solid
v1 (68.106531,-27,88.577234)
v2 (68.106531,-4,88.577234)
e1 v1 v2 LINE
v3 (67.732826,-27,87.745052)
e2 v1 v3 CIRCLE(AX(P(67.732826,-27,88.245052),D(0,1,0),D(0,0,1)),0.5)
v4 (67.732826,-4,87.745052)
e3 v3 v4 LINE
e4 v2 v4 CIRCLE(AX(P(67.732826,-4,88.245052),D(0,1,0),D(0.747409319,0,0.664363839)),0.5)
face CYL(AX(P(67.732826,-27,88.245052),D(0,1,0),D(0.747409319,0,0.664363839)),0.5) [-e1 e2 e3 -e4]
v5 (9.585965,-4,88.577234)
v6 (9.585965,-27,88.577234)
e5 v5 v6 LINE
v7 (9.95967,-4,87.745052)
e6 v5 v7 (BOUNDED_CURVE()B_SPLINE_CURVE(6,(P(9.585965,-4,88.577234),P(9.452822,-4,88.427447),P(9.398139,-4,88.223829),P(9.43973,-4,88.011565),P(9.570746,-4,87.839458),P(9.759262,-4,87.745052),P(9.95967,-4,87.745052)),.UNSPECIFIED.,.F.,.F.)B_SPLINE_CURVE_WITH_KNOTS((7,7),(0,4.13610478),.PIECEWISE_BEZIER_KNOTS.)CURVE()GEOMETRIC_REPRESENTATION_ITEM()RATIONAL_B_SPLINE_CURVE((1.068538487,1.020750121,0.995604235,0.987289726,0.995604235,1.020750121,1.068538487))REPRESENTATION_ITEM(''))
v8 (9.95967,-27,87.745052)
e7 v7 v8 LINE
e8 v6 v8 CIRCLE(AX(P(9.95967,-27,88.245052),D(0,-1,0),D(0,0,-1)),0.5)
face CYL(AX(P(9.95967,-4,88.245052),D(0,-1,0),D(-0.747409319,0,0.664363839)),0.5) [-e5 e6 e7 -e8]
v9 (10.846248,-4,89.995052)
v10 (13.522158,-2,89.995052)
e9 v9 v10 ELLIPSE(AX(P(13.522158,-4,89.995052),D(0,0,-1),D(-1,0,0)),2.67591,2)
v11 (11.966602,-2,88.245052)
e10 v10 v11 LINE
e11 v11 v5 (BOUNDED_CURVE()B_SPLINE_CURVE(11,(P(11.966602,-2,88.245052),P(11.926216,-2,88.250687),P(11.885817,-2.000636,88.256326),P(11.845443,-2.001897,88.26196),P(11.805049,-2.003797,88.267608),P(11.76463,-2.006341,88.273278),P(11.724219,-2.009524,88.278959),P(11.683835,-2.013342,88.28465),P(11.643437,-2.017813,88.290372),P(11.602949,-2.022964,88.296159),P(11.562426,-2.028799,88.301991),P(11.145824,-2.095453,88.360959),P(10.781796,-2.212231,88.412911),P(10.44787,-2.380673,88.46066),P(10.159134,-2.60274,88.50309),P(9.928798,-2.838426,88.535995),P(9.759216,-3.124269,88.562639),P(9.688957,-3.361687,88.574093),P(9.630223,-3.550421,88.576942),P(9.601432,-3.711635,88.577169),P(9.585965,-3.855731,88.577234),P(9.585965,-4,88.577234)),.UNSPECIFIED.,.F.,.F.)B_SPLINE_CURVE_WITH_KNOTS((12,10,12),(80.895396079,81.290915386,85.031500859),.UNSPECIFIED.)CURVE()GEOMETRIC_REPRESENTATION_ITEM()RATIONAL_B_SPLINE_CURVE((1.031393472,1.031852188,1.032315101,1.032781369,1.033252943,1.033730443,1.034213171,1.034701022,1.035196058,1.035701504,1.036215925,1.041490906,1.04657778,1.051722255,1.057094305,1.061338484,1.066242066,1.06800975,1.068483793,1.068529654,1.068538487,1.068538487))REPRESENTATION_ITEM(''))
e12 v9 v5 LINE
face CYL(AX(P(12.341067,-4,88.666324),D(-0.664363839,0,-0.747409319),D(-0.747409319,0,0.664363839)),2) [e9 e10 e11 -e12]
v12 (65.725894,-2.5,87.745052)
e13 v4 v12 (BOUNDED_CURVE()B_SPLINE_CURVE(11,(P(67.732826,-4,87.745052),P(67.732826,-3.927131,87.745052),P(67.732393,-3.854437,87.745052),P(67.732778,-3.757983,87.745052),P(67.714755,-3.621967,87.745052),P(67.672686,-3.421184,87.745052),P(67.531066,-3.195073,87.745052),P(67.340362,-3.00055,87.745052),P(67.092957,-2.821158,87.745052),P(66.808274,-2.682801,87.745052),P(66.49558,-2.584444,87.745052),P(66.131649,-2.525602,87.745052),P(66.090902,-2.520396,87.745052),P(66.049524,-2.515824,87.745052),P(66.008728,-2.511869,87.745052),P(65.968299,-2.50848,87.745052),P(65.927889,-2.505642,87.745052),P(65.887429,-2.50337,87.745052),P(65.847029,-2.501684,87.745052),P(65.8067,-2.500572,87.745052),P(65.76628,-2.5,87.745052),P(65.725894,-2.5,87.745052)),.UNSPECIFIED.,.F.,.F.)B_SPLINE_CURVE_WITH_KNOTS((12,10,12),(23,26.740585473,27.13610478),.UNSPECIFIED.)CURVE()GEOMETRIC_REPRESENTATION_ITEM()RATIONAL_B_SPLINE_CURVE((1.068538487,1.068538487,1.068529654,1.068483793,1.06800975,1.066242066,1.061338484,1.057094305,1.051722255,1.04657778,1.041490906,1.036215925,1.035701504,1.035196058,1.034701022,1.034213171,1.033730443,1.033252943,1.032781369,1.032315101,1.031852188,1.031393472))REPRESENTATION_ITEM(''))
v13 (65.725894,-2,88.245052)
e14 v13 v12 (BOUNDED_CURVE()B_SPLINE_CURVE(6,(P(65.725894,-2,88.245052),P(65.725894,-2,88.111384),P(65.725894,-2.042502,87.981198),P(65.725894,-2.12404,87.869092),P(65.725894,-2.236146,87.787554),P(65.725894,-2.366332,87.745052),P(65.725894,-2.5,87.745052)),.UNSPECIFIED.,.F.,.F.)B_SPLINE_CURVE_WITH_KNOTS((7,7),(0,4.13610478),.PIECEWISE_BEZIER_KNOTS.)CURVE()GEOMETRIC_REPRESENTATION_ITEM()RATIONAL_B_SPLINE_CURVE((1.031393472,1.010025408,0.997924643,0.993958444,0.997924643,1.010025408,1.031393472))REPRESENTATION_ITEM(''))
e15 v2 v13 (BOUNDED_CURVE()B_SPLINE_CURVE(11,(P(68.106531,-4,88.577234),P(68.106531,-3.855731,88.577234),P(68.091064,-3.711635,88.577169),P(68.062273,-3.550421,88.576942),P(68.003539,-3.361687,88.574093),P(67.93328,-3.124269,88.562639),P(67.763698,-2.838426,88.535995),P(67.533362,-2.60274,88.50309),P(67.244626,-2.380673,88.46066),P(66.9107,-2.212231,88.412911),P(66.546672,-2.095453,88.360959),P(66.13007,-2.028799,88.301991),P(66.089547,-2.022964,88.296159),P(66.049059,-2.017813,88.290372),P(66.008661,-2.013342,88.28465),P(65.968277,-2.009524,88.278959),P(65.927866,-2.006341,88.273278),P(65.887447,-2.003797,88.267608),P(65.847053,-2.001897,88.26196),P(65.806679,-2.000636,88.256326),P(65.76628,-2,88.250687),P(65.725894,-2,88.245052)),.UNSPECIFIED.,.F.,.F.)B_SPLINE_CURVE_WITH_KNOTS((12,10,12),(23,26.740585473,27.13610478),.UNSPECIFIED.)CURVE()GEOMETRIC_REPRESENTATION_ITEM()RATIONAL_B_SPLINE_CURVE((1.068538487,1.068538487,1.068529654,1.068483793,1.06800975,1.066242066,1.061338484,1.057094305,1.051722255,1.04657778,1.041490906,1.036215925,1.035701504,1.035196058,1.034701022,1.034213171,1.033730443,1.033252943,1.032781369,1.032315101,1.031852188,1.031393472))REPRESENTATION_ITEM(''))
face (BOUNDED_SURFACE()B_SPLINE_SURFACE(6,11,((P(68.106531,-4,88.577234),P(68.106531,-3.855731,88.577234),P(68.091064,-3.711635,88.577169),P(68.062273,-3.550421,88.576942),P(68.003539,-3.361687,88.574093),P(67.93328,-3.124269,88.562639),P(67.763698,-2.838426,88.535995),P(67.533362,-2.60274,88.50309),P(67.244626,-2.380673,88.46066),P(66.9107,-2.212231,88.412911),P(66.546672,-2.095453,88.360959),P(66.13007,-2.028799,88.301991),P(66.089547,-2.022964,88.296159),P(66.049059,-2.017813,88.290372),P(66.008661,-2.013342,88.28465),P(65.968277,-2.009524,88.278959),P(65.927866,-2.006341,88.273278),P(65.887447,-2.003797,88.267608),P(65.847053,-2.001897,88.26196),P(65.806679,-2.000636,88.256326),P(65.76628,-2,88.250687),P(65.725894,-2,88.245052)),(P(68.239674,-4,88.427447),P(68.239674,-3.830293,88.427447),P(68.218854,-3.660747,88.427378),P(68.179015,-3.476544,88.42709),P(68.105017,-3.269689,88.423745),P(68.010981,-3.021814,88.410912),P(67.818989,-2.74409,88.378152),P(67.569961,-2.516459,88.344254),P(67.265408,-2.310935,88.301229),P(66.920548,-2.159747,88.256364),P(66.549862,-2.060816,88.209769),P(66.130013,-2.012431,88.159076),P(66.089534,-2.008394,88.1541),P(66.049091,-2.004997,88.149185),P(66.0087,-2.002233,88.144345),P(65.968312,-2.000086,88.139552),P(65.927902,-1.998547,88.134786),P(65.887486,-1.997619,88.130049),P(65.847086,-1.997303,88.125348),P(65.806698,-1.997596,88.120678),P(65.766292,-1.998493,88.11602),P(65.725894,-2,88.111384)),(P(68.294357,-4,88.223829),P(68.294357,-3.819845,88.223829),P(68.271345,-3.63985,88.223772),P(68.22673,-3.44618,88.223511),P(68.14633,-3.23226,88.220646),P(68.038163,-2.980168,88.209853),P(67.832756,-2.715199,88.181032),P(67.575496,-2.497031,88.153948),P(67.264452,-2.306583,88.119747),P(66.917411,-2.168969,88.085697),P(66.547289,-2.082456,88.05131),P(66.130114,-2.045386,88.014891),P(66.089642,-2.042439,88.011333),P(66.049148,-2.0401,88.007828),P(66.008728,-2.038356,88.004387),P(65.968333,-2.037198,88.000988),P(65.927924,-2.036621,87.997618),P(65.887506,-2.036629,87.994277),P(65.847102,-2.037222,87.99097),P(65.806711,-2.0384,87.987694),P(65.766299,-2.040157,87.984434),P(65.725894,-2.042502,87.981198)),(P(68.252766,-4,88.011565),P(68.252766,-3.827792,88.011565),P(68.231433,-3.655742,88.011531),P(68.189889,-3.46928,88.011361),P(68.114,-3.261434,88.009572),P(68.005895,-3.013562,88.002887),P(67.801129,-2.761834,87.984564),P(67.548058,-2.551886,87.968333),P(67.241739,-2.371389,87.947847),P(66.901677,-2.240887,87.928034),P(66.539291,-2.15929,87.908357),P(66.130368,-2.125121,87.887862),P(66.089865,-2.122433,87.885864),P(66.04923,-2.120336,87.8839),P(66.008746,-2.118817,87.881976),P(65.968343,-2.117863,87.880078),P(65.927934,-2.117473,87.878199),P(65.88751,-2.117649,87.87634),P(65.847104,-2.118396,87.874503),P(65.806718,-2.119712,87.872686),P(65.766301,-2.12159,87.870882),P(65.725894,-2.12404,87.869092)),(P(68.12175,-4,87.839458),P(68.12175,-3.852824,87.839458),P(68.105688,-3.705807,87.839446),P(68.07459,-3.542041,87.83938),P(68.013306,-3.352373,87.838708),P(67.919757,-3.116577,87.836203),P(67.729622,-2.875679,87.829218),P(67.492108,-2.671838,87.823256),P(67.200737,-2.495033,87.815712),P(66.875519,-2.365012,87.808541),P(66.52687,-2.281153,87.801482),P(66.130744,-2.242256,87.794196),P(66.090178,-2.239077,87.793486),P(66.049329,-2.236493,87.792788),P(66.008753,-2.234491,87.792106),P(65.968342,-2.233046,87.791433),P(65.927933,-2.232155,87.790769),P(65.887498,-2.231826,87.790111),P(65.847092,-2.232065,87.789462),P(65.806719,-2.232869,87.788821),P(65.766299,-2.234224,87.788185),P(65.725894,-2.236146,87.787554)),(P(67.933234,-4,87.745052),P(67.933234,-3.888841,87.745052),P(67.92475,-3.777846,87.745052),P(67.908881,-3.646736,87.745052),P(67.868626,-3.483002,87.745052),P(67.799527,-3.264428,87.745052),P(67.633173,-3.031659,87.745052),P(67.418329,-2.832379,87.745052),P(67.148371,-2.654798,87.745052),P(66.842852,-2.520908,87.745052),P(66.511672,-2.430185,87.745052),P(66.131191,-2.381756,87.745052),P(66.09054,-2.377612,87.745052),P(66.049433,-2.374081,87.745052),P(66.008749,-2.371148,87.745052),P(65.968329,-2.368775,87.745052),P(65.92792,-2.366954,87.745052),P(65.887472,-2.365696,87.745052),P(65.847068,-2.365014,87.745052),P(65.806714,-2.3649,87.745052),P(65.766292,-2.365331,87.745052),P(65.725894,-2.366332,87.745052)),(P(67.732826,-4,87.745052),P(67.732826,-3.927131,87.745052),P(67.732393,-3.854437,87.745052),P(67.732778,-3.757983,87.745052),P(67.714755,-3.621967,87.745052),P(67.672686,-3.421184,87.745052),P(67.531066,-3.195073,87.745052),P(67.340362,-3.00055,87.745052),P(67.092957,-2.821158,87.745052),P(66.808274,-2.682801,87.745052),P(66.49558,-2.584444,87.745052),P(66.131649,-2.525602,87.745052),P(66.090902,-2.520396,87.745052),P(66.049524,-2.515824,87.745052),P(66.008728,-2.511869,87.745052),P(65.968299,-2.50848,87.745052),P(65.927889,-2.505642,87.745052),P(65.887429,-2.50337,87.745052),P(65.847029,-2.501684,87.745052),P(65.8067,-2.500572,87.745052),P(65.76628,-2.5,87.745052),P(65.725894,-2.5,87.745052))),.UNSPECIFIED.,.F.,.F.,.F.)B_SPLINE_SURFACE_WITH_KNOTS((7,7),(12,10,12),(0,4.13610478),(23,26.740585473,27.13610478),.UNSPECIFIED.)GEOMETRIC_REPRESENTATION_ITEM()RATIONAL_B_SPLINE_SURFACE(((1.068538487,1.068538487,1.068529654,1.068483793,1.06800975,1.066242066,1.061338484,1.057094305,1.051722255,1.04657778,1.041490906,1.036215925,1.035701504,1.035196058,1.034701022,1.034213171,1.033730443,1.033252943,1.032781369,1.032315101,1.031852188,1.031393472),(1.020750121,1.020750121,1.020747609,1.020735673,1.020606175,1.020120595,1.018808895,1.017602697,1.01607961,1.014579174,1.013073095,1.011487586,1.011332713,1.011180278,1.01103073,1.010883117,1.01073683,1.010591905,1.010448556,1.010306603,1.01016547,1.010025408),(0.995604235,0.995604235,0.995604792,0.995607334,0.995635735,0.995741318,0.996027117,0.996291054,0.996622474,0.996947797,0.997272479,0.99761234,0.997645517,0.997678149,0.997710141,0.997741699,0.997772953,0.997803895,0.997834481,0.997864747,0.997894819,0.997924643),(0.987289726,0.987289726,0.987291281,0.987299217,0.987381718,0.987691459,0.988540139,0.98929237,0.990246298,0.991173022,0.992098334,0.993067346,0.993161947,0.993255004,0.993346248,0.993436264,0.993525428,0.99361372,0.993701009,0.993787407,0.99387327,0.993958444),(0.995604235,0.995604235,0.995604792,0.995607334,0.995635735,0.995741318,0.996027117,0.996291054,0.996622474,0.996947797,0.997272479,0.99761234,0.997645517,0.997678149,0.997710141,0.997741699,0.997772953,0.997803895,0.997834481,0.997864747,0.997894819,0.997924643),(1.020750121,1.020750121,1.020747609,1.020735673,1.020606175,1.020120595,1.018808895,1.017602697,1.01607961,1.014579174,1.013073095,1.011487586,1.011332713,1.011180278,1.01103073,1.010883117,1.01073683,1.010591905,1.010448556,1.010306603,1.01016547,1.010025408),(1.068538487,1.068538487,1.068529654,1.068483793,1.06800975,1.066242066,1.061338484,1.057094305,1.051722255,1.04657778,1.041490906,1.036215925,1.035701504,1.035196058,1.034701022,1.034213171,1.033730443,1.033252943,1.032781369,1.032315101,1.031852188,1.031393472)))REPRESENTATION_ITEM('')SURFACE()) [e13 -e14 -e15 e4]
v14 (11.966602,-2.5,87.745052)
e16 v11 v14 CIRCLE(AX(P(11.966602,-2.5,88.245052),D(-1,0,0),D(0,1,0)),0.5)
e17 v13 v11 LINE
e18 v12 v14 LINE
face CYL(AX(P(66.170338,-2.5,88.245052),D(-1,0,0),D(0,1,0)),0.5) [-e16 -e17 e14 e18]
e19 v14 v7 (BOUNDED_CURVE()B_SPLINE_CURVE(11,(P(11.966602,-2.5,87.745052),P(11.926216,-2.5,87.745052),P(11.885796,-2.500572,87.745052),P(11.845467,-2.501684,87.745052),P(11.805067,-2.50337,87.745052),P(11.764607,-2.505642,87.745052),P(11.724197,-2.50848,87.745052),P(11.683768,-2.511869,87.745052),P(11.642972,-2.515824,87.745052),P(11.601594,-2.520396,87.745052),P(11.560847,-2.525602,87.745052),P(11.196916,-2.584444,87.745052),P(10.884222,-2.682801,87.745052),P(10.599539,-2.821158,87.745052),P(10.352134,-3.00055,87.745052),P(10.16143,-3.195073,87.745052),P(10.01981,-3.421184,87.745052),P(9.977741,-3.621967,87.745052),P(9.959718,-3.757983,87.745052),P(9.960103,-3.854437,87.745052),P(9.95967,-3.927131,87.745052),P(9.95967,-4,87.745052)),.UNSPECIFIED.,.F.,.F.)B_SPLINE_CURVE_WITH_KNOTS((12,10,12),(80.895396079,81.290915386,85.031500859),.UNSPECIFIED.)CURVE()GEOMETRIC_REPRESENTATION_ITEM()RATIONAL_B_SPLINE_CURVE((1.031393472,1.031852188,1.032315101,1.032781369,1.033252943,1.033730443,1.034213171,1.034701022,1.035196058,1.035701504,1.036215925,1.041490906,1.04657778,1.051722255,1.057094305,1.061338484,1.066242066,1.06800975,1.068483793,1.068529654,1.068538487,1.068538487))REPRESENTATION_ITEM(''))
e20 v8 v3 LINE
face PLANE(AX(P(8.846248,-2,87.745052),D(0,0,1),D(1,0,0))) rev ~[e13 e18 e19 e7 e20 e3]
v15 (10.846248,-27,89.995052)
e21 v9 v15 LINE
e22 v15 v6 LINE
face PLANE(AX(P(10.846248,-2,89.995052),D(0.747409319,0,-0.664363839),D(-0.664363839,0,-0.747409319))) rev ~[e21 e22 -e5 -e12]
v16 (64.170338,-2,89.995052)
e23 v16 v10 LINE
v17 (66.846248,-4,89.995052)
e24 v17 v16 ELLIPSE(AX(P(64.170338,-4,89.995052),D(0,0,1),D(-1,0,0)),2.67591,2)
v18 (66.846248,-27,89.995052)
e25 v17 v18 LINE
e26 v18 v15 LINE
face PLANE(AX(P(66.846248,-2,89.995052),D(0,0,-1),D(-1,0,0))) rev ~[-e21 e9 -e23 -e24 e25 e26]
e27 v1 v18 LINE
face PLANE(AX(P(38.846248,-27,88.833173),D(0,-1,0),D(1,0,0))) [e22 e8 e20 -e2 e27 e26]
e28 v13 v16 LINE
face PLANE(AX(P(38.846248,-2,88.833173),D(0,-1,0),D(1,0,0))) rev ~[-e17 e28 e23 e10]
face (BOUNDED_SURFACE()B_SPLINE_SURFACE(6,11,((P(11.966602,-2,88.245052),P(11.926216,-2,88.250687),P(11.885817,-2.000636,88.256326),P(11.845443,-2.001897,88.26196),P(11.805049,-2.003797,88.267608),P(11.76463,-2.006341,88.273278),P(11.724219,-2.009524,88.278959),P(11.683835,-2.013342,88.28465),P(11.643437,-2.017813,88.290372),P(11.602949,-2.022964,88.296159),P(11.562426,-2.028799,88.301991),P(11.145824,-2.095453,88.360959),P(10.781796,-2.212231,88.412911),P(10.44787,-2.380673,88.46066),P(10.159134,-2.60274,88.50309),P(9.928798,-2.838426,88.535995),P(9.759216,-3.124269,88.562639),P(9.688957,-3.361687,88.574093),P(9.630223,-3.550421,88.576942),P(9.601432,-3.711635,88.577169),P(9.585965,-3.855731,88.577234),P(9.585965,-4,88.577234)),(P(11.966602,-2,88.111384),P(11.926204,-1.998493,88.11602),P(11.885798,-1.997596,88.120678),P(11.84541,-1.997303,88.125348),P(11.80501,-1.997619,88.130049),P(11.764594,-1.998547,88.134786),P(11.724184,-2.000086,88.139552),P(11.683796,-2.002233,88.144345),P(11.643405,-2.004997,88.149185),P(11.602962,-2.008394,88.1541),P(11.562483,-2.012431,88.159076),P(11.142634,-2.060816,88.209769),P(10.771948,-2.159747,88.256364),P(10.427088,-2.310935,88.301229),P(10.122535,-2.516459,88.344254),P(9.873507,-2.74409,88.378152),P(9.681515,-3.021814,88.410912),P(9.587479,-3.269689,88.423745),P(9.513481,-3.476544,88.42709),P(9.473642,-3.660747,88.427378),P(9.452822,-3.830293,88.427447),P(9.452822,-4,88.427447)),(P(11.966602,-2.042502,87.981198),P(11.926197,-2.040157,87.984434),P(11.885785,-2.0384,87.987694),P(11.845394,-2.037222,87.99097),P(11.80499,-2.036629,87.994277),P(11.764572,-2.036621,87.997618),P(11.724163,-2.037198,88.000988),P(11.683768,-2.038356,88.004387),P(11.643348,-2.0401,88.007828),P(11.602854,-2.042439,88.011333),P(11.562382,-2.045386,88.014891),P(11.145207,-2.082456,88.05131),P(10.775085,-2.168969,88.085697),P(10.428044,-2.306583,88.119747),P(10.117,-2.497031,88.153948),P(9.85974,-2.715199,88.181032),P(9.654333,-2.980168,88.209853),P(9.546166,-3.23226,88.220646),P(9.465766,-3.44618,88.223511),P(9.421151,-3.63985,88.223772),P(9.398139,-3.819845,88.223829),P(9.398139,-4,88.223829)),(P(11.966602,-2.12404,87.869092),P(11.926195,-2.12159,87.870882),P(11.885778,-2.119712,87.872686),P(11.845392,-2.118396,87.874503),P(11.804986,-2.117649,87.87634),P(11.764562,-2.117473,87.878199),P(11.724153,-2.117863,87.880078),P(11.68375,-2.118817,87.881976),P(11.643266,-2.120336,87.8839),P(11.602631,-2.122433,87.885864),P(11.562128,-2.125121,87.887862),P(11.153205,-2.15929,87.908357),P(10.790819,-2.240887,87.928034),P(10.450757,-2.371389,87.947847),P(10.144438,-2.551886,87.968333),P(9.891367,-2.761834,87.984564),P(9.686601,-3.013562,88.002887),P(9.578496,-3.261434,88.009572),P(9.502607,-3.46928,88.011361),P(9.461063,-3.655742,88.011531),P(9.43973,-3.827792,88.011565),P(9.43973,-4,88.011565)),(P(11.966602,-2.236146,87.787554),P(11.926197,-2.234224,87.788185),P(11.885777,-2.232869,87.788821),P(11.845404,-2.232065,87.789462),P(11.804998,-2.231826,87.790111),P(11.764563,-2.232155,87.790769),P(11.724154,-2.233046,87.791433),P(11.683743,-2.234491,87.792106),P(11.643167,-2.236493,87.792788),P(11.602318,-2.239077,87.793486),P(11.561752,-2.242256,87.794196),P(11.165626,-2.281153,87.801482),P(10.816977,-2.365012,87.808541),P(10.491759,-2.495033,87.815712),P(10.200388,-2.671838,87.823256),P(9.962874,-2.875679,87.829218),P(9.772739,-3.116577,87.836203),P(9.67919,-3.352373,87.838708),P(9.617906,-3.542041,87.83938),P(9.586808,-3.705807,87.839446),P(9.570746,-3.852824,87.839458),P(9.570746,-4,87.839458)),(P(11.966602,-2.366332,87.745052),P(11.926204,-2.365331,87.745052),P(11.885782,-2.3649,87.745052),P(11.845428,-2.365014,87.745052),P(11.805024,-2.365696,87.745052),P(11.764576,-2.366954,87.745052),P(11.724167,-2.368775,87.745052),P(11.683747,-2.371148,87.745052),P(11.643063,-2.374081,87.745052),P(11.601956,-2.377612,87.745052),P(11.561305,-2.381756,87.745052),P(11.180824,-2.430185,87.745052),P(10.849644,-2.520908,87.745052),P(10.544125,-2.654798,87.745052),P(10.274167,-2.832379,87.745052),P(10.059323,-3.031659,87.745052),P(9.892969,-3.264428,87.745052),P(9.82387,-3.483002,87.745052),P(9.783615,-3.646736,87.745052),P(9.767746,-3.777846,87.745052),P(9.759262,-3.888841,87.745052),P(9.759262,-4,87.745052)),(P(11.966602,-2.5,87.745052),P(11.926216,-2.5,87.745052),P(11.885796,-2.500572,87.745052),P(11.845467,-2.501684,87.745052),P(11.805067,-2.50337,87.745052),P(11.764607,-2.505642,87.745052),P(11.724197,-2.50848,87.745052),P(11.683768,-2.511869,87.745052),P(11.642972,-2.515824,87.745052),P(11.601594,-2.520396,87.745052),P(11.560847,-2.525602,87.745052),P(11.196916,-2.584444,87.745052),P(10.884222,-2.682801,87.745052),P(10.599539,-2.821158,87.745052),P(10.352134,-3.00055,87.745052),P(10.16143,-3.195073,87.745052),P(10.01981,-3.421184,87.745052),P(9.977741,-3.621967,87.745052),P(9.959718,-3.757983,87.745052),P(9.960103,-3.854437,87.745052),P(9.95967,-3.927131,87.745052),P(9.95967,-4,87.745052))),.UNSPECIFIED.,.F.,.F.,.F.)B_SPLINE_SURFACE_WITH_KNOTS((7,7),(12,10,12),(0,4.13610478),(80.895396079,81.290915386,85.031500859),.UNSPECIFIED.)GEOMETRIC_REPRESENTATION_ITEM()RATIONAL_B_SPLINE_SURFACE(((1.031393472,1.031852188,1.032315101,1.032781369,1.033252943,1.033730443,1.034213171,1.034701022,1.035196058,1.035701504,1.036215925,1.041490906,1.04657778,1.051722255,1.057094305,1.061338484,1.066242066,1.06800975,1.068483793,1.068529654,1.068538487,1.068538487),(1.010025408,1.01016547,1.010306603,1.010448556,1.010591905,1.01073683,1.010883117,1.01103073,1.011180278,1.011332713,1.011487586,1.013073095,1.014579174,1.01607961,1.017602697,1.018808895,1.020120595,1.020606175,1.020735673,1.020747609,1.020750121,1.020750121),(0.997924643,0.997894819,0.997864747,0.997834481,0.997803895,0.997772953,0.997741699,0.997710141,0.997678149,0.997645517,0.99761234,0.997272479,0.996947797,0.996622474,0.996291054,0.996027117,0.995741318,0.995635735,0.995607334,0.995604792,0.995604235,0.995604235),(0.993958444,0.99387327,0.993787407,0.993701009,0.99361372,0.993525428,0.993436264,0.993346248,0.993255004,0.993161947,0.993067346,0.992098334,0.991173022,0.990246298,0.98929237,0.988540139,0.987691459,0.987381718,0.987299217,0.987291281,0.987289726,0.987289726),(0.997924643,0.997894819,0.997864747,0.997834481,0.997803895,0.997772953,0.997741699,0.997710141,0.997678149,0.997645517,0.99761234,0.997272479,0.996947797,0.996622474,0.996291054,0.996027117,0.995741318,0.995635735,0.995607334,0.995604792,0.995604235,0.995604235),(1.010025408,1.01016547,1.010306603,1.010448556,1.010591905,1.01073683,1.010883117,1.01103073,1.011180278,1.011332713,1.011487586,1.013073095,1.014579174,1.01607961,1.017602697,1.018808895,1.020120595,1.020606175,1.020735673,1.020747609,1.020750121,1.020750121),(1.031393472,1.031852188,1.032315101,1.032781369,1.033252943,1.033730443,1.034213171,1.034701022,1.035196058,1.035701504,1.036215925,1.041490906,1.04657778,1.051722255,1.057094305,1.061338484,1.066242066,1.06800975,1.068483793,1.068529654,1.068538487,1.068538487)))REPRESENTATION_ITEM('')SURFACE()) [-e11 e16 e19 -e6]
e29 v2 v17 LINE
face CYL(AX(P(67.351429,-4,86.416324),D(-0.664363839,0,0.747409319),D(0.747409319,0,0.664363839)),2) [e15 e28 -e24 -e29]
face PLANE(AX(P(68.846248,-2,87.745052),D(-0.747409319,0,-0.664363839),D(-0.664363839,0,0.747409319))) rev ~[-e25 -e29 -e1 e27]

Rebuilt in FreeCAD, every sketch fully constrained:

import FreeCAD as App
import Part
import Sketcher
Q = App.Units.Quantity


def edges_at(feature, points):
    """Names of the edges that pass closest to the given points."""
    edges = feature.Shape.Edges
    near = lambda p: min(range(len(edges)), key=lambda i: edges[i].distToShape(Part.Vertex(*p))[0])
    return sorted({f"Edge{near(p) + 1}" for p in points})

doc = App.newDocument("Part")
body = doc.addObject("PartDesign::Body", "Body")

sketch1 = body.newObject("Sketcher::SketchObject", "Sketch")
sketch1.AttachmentSupport = (doc.getObject("XZ_Plane"), [""])
sketch1.MapMode = "FlatFace"
sketch1.addGeometry(Part.LineSegment(App.Vector(10.846248, 101.175052, 0), App.Vector(8.846248, 98.925052, 0)), False)
sketch1.addGeometry(Part.LineSegment(App.Vector(8.846248, 98.925052, 0), App.Vector(68.846248, 98.925052, 0)), False)
sketch1.addGeometry(Part.LineSegment(App.Vector(68.846248, 98.925052, 0), App.Vector(66.846248, 101.175052, 0)), False)
sketch1.addGeometry(Part.LineSegment(App.Vector(66.846248, 101.175052, 0), App.Vector(10.846248, 101.175052, 0)), False)
sketch1.addConstraint(Sketcher.Constraint("Coincident", 0, 2, 1, 1))
sketch1.addConstraint(Sketcher.Constraint("Coincident", 1, 2, 2, 1))
sketch1.addConstraint(Sketcher.Constraint("Coincident", 2, 2, 3, 1))
sketch1.addConstraint(Sketcher.Constraint("Coincident", 3, 2, 0, 1))
sketch1.addConstraint(Sketcher.Constraint("Horizontal", 1))
sketch1.addConstraint(Sketcher.Constraint("Horizontal", 3))
sketch1.addConstraint(Sketcher.Constraint("Equal", 0, 2))
sketch1.addConstraint(Sketcher.Constraint("DistanceX", 1, 1, 1, 2, Q("60 mm")))
sketch1.addConstraint(Sketcher.Constraint("DistanceX", 3, 2, 3, 1, Q("56 mm")))
sketch1.addConstraint(Sketcher.Constraint("DistanceY", 1, 2, 2, 2, Q("2.25 mm")))
sketch1.addConstraint(Sketcher.Constraint("DistanceY", -1, 1, 0, 2, Q("98.925052 mm")))
sketch1.addConstraint(Sketcher.Constraint("DistanceX", -1, 1, 1, 2, Q("68.846248 mm")))
pad1 = body.newObject("PartDesign::Pad", "Pad")
pad1.Profile = sketch1
pad1.Length = 25
body2 = doc.addObject("PartDesign::Body", "Body001")
doc.recompute()

body.Placement = App.Placement(App.Vector(0.5, -6.5, 0), App.Rotation(App.Vector(0, 0, 1), 0))
boolean = body2.newObject("PartDesign::Boolean", "Boolean")
boolean.Type = "Fuse"
boolean.addObjects([body])
doc.recompute()

fillet = body2.newObject("PartDesign::Fillet", "Fillet")
fillet.Base = (boolean, edges_at(boolean, [(10.346, -6.5, 100.05), (68.346, -6.5, 100.05)]))
fillet.Radius = 2
doc.recompute()

fillet2 = body2.newObject("PartDesign::Fillet", "Fillet001")
fillet2.Base = (fillet, edges_at(fillet, [(9.346, -20, 98.925), (69.346, -20, 98.925)]))
fillet2.Radius = 0.5
body3 = doc.addObject("PartDesign::Body", "Body002")
doc.recompute()

body2.Placement = App.Placement(App.Vector(-0.5, 4.5, -11.18), App.Rotation(App.Vector(0, 0, 1), 0))
boolean2 = body3.newObject("PartDesign::Boolean", "Boolean001")
boolean2.Type = "Fuse"
boolean2.addObjects([body2])

doc.recompute()
